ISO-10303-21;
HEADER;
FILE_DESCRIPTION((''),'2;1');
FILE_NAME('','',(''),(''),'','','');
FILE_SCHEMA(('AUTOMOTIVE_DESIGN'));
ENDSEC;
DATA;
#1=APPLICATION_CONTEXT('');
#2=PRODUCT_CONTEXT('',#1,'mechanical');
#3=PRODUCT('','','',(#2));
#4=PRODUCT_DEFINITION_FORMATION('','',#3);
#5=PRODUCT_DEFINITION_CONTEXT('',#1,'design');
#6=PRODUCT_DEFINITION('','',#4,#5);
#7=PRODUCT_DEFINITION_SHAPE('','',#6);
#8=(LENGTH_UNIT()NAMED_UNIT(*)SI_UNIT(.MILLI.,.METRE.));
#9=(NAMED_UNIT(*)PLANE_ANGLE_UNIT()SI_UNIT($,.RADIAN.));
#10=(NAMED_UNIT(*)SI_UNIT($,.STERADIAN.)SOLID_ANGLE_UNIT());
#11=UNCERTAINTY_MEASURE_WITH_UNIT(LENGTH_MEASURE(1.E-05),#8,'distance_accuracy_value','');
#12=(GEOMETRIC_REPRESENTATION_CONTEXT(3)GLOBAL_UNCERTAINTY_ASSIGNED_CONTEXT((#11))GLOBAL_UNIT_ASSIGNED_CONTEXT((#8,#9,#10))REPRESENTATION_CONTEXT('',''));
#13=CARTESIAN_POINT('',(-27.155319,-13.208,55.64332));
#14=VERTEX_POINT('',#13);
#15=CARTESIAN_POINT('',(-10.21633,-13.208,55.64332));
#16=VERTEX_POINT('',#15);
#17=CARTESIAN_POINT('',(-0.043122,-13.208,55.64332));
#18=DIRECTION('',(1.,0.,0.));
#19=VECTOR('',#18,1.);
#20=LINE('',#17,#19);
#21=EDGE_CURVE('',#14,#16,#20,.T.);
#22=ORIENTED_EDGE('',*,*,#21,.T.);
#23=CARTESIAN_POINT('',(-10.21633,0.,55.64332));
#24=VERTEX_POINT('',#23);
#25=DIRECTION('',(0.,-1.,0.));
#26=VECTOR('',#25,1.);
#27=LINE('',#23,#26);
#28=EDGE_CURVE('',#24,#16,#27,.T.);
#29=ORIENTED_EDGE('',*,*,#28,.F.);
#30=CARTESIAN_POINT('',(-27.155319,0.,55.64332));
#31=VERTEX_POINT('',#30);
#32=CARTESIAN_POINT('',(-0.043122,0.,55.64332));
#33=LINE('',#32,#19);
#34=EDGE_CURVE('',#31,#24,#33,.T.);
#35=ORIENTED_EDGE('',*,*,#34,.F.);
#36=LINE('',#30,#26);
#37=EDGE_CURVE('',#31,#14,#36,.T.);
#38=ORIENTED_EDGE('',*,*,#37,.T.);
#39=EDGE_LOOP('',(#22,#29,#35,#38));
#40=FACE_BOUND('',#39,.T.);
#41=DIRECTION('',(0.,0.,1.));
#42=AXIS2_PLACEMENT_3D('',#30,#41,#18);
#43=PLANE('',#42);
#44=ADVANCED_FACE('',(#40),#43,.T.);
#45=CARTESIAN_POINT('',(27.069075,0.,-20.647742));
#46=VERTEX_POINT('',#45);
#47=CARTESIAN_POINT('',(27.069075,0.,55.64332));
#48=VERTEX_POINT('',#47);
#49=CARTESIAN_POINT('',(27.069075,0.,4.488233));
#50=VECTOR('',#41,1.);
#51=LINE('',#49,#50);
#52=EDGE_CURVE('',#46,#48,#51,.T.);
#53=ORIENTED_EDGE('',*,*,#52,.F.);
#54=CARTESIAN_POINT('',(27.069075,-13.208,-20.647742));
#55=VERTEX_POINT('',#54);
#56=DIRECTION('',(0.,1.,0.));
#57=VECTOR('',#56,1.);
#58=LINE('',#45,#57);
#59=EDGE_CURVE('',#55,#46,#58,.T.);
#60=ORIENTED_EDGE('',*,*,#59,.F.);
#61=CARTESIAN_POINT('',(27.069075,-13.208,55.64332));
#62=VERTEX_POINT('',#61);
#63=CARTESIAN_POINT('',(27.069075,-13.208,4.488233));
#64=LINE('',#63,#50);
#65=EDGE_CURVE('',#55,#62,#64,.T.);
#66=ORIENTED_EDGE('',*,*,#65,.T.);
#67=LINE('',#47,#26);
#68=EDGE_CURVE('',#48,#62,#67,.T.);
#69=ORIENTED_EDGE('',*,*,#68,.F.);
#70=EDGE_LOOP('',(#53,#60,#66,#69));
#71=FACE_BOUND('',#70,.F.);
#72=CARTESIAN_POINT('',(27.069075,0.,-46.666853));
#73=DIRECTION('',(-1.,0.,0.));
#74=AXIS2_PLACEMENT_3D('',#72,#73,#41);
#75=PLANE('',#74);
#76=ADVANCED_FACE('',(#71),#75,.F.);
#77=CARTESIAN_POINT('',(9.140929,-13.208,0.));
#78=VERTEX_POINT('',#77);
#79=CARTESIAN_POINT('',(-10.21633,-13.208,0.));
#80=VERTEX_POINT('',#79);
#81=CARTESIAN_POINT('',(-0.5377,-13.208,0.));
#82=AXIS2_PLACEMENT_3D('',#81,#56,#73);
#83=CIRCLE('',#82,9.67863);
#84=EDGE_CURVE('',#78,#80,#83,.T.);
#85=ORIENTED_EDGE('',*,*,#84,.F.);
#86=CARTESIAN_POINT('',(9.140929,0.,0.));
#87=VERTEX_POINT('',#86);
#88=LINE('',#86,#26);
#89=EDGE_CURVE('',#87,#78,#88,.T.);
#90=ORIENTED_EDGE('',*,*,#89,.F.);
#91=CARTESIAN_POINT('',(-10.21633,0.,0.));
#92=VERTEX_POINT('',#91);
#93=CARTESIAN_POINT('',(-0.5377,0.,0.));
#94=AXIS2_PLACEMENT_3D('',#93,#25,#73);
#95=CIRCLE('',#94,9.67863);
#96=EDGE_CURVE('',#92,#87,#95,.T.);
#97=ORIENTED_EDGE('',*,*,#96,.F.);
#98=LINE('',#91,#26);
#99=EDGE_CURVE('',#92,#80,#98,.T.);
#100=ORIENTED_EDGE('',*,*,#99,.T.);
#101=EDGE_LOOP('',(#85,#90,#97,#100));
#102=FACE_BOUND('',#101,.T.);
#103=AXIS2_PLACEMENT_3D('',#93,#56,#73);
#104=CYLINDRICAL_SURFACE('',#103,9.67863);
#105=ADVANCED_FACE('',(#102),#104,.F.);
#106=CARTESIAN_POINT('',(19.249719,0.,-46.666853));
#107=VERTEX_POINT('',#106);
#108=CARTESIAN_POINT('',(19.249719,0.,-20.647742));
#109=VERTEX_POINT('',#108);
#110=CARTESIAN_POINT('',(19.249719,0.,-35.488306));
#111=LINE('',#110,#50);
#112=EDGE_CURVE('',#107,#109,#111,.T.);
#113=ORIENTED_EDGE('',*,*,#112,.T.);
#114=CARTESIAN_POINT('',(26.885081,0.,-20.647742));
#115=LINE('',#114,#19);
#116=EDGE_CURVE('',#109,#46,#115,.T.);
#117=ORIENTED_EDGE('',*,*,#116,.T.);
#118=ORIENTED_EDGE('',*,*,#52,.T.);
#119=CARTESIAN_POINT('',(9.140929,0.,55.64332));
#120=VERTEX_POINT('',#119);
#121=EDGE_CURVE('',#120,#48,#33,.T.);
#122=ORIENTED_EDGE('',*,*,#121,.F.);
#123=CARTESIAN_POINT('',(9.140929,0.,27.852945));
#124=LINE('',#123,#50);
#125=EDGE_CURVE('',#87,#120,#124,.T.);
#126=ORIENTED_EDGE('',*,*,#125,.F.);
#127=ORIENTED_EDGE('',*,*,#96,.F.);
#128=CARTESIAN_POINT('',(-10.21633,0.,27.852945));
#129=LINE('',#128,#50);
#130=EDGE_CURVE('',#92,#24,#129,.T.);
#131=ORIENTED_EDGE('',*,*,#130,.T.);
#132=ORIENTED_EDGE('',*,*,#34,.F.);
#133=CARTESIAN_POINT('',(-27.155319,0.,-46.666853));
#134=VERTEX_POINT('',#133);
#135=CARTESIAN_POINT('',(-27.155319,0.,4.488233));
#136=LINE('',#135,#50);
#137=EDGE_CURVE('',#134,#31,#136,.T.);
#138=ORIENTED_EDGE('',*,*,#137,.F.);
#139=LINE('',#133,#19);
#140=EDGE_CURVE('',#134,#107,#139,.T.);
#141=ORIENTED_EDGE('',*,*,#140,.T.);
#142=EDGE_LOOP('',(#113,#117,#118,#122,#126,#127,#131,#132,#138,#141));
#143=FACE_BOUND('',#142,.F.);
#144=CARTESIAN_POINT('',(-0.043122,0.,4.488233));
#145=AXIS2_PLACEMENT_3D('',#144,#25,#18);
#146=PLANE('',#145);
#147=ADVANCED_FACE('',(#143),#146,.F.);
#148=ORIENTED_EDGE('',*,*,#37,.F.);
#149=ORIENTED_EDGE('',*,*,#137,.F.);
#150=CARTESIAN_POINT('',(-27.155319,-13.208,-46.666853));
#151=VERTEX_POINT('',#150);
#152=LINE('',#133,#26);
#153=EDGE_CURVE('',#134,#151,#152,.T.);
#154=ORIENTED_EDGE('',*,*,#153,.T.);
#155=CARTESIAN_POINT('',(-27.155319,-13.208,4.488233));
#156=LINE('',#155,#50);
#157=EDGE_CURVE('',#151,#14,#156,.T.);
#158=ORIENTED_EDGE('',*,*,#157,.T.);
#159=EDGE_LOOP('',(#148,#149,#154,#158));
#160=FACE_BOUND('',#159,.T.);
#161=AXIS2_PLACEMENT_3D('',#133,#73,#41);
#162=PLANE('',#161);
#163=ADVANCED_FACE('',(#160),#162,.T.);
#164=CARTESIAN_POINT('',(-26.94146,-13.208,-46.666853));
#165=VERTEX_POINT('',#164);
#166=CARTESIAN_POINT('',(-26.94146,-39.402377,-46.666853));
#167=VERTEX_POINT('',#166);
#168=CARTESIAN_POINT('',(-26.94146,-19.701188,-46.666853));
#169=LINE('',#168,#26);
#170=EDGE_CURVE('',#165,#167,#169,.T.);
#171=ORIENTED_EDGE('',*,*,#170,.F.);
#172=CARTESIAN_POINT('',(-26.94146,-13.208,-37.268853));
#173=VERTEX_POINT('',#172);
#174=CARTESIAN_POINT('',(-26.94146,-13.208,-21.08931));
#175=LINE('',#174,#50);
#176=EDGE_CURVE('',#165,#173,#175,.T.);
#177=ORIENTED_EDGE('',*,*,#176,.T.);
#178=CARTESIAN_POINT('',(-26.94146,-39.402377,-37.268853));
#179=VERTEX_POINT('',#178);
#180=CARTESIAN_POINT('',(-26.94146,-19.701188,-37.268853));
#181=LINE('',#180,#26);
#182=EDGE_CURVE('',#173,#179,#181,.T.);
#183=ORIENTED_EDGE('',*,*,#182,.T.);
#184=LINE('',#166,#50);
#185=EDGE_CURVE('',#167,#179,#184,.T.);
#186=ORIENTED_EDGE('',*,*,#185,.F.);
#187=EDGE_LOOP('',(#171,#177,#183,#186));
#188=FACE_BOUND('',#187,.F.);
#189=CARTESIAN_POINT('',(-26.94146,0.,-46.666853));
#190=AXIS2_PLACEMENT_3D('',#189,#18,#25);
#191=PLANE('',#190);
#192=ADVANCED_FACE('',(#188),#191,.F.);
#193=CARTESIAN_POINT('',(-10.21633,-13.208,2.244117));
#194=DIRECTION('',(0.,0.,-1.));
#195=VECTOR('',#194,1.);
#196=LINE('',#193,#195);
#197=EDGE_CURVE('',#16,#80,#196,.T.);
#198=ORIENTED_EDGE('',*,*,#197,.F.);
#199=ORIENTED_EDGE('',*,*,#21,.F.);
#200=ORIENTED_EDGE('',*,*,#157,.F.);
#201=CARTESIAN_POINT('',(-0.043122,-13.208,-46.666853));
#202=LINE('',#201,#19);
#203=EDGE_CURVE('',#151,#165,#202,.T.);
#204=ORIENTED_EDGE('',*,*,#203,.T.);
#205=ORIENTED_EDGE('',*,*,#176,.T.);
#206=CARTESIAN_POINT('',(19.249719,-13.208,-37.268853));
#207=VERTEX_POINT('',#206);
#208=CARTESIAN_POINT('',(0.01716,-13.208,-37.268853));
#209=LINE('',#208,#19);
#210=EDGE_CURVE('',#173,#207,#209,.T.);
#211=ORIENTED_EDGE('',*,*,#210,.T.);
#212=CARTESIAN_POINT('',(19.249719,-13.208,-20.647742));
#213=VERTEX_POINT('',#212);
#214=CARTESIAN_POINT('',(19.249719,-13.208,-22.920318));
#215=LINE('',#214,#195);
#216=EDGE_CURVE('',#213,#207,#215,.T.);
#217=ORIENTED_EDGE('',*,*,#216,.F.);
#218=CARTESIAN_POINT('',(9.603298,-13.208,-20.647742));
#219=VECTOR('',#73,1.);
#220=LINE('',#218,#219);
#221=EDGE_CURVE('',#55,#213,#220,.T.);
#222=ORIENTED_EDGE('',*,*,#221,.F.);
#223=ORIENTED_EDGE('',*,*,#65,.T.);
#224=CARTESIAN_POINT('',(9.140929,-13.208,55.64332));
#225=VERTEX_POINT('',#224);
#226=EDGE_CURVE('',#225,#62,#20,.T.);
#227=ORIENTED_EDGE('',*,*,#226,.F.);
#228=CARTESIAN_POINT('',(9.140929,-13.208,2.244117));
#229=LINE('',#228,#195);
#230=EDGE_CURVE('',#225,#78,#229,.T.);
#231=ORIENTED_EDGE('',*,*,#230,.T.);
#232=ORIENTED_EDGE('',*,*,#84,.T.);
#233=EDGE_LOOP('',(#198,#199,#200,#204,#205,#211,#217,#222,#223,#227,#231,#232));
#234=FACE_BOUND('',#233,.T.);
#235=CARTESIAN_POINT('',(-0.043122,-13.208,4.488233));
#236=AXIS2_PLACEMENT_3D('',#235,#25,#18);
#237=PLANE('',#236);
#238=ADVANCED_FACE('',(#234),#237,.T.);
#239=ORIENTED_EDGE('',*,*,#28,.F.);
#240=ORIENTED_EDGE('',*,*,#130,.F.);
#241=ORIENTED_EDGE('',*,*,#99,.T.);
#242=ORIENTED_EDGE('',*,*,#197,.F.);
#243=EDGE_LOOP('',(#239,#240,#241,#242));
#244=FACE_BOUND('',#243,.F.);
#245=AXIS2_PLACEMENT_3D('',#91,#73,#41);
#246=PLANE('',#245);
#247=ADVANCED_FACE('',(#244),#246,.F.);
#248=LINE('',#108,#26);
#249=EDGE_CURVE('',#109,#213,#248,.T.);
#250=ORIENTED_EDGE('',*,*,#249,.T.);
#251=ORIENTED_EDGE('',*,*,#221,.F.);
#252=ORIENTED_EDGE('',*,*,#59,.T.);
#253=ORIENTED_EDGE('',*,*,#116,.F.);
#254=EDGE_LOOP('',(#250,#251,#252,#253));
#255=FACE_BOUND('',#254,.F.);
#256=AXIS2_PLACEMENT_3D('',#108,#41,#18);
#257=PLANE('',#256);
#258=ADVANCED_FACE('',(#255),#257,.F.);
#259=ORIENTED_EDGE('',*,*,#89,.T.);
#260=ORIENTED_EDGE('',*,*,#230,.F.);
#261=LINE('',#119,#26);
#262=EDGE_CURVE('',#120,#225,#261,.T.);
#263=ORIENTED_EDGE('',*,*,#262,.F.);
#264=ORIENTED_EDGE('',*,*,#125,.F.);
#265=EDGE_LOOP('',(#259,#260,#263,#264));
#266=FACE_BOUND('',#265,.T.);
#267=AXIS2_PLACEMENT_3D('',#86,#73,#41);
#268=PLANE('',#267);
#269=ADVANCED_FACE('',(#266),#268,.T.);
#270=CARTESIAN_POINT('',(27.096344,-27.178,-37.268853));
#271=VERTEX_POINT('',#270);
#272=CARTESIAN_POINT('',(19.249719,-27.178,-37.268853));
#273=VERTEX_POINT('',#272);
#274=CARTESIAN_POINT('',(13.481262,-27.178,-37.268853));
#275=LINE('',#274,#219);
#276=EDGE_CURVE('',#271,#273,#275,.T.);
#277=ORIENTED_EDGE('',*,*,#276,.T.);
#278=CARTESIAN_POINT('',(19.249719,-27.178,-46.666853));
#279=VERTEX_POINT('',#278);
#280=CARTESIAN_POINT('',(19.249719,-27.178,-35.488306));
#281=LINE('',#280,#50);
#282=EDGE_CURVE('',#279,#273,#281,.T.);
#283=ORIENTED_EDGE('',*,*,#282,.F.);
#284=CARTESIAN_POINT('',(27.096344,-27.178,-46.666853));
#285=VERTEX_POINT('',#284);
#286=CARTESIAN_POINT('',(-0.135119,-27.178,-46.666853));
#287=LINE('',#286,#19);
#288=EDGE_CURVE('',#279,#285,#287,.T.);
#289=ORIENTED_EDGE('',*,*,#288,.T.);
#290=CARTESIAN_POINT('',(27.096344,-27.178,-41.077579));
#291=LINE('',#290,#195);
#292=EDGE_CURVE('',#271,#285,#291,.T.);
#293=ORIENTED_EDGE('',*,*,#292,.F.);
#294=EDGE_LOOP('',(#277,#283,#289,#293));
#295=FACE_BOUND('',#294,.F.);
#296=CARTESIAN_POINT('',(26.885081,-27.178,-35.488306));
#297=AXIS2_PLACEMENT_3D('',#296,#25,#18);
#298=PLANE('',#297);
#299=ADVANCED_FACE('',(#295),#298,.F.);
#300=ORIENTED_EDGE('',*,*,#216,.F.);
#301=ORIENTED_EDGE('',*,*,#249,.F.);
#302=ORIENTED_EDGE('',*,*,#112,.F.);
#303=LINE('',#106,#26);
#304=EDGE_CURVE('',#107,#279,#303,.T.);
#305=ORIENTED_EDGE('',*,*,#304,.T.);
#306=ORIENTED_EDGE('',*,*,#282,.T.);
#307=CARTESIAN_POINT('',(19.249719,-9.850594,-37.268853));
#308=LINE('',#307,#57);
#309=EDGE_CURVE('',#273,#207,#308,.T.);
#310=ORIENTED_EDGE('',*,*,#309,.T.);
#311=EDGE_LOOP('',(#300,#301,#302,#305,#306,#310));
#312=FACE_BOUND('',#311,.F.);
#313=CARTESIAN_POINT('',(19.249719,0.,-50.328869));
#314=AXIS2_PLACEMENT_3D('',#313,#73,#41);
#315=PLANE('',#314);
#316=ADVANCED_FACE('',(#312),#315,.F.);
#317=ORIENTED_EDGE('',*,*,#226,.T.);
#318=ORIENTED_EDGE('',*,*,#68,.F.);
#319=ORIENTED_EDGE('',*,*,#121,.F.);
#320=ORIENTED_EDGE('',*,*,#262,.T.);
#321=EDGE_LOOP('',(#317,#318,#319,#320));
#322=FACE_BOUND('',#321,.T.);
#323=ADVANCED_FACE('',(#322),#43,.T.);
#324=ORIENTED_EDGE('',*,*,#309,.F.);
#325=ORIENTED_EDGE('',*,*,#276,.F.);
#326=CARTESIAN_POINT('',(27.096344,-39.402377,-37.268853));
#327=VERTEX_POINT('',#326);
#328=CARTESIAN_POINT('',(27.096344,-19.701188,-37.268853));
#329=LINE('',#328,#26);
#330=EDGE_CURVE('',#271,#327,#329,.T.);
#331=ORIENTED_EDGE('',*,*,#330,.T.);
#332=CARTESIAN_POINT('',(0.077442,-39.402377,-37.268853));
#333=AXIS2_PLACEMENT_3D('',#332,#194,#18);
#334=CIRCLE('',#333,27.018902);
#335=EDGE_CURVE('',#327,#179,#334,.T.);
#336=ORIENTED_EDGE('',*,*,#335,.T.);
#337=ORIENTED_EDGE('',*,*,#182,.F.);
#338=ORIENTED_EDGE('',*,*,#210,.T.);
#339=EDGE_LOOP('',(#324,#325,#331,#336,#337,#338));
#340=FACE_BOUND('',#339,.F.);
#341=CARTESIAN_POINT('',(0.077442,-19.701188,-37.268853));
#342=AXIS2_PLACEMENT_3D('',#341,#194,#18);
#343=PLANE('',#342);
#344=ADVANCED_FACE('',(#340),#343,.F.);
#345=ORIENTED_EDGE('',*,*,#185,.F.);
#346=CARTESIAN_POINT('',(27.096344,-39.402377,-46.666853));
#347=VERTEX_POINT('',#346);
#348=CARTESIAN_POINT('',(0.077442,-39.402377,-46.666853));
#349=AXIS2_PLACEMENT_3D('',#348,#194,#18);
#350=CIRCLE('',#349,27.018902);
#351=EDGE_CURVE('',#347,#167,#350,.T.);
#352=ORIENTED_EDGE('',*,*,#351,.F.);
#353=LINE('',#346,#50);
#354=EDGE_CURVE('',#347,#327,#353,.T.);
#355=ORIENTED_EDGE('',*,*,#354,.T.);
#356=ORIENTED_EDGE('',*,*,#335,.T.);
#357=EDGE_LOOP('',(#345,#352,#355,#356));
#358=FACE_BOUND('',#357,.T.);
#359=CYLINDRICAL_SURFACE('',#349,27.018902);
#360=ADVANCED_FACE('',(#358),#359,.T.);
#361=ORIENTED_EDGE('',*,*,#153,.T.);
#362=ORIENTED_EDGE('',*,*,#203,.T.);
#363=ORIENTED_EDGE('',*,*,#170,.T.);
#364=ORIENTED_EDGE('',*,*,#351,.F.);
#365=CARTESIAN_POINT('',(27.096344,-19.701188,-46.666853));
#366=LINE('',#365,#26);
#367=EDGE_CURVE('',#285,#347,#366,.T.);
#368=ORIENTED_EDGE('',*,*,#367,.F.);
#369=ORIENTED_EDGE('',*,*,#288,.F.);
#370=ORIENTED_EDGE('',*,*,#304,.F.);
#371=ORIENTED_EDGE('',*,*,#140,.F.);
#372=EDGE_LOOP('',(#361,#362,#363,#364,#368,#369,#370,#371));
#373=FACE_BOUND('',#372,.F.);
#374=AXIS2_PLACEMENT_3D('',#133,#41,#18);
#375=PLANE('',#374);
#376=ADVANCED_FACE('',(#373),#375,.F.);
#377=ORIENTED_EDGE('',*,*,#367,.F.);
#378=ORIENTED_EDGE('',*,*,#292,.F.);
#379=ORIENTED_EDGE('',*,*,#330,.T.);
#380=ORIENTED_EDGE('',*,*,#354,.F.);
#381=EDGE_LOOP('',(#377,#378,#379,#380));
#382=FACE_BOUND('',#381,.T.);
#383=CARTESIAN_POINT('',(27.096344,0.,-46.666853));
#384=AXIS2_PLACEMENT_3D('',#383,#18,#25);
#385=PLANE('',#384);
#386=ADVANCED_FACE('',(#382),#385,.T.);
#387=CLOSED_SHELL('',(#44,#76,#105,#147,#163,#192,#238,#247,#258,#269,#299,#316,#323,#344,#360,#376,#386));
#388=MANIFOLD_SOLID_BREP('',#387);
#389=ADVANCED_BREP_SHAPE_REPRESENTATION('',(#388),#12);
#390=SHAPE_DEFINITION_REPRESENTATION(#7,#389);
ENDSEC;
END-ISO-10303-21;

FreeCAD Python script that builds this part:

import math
import FreeCAD as App
import Part
import Sketcher
from FreeCAD import Vector
Q = App.Units.Quantity


def add_polygon(sketch, points):
    """Adds a closed chain of lines whose ends are joined by coincident constraints."""
    first, n = sketch.GeometryCount, len(points)
    for a, b in zip(points, points[1:] + points[:1]):
        sketch.addGeometry(Part.LineSegment(App.Vector(*a, 0), App.Vector(*b, 0)), False)
    for i in range(n):
        sketch.addConstraint(Sketcher.Constraint("Coincident", first + i, 2, first + (i + 1) % n, 1))

doc = App.newDocument("Part")
body = doc.addObject("PartDesign::Body", "Body")

# Sketch on XZ plane
sketch1 = body.newObject("Sketcher::SketchObject", "Sketch")
sketch1.AttachmentSupport = (doc.getObject("XZ_Plane"), [""])
sketch1.MapMode = "FlatFace"
add_polygon(sketch1, [(-27, 56), (-27, -47), (27, -47), (27, 56)])  # lines 0-3
sketch1.addConstraint([
    Sketcher.Constraint("Vertical", 0),
    Sketcher.Constraint("Horizontal", 1),
    Sketcher.Constraint("Vertical", 2),
    Sketcher.Constraint("Horizontal", 3),
    Sketcher.Constraint("DistanceX", 1, 1, 1, 2, 54.224394),
    Sketcher.Constraint("DistanceY", 0, 2, 0, 1, 102.310173),
    Sketcher.Constraint("DistanceX", 0, 2, -1, 1, 27.155319),
    Sketcher.Constraint("DistanceY", -1, 1, 2, 2, 55.64332),
])
pad1 = body.newObject("PartDesign::Pad", "Pad")
pad1.Profile = sketch1
pad1.Length = Q("0.52 in")

# Sketch on XZ plane
sketch2 = body.newObject("Sketcher::SketchObject", "Sketch001")
sketch2.AttachmentSupport = (doc.getObject("XZ_Plane"), [""])
sketch2.MapMode = "FlatFace"
sketch2.addGeometry([
    Part.LineSegment(Vector(-10, 56, 0), Vector(-10, 0, 0)),
    Part.ArcOfCircle(Part.Circle(Vector(-1, 0, 0), Vector(0, 0, 1), 10), math.radians(180), math.radians(360)),
    Part.LineSegment(Vector(9, 0, 0), Vector(9, 56, 0)),
    Part.LineSegment(Vector(9, 56, 0), Vector(-10, 56, 0)),
], False)
sketch2.addConstraint([
    Sketcher.Constraint("Tangent", 0, 2, 1, 1),
    Sketcher.Constraint("Tangent", 1, 2, 2, 1),
    Sketcher.Constraint("Coincident", 2, 2, 3, 1),
    Sketcher.Constraint("Coincident", 3, 2, 0, 1),
    Sketcher.Constraint("Vertical", 0),
    Sketcher.Constraint("Vertical", 2),
    Sketcher.Constraint("Horizontal", 3),
    Sketcher.Constraint("PointOnObject", 1, 3, -1),
    Sketcher.Constraint("Radius", 1, 9.67863),
    Sketcher.Constraint("DistanceY", 0, 2, 0, 1, 55.70589),
    Sketcher.Constraint("DistanceX", 1, 3, -1, 1, 0.5377),
])
pocket1 = body.newObject("PartDesign::Pocket", "Pocket")
pocket1.Profile = sketch2
pocket1.Length = Q("1.66 in")
pocket1.Reversed = True

# Sketch on XY plane
sketch3 = body.newObject("Sketcher::SketchObject", "Sketch002")
sketch3.AttachmentSupport = (doc.getObject("XY_Plane"), [""])
sketch3.MapMode = "FlatFace"
sketch3.AttachmentOffset = App.Placement(Vector(0, 0, -46.666853), App.Rotation())
sketch3.addGeometry([
    Part.LineSegment(Vector(-27, -39, 0), Vector(-27, 0, 0)),
    Part.LineSegment(Vector(-27, 0, 0), Vector(27, 0, 0)),
    Part.LineSegment(Vector(27, 0, 0), Vector(27, -39, 0)),
    Part.ArcOfCircle(Part.Circle(Vector(0, -39, 0), Vector(0, 0, 1), 27), math.radians(180), math.radians(360)),
], False)
sketch3.addConstraint([
    Sketcher.Constraint("Coincident", 0, 2, 1, 1),
    Sketcher.Constraint("Coincident", 1, 2, 2, 1),
    Sketcher.Constraint("Tangent", 2, 2, 3, 2),
    Sketcher.Constraint("Tangent", 3, 1, 0, 1),
    Sketcher.Constraint("Vertical", 0),
    Sketcher.Constraint("Horizontal", 1),
    Sketcher.Constraint("Vertical", 2),
    Sketcher.Constraint("PointOnObject", 0, 2, -1),
    Sketcher.Constraint("Radius", 3, 27.018902),
    Sketcher.Constraint("DistanceY", 0, 1, 0, 2, 39.402377),
    Sketcher.Constraint("DistanceX", 0, 2, -1, 1, 26.94146),
])
pad2 = body.newObject("PartDesign::Pad", "Pad001")
pad2.Profile = sketch3
pad2.Length = Q("0.37 in")

# Sketch on XZ plane
sketch4 = body.newObject("Sketcher::SketchObject", "Sketch003")
sketch4.AttachmentSupport = (doc.getObject("XZ_Plane"), [""])
sketch4.MapMode = "FlatFace"
add_polygon(sketch4, [(19, -21), (19, -50), (35, -50), (35, -21)])  # lines 0-3
sketch4.addConstraint([
    Sketcher.Constraint("Vertical", 0),
    Sketcher.Constraint("Horizontal", 1),
    Sketcher.Constraint("Vertical", 2),
    Sketcher.Constraint("Horizontal", 3),
    Sketcher.Constraint("DistanceX", 1, 1, 1, 2, 15.270725),
    Sketcher.Constraint("DistanceY", 0, 2, 0, 1, 29.681128),
    Sketcher.Constraint("DistanceX", -1, 1, 0, 2, 19.249719),
    Sketcher.Constraint("DistanceY", 0, 2, -1, 1, 50.328869),
])
pocket2 = body.newObject("PartDesign::Pocket", "Pocket001")
pocket2.Profile = sketch4
pocket2.Length = Q("1.07 in")
pocket2.Reversed = True

doc.recompute()
